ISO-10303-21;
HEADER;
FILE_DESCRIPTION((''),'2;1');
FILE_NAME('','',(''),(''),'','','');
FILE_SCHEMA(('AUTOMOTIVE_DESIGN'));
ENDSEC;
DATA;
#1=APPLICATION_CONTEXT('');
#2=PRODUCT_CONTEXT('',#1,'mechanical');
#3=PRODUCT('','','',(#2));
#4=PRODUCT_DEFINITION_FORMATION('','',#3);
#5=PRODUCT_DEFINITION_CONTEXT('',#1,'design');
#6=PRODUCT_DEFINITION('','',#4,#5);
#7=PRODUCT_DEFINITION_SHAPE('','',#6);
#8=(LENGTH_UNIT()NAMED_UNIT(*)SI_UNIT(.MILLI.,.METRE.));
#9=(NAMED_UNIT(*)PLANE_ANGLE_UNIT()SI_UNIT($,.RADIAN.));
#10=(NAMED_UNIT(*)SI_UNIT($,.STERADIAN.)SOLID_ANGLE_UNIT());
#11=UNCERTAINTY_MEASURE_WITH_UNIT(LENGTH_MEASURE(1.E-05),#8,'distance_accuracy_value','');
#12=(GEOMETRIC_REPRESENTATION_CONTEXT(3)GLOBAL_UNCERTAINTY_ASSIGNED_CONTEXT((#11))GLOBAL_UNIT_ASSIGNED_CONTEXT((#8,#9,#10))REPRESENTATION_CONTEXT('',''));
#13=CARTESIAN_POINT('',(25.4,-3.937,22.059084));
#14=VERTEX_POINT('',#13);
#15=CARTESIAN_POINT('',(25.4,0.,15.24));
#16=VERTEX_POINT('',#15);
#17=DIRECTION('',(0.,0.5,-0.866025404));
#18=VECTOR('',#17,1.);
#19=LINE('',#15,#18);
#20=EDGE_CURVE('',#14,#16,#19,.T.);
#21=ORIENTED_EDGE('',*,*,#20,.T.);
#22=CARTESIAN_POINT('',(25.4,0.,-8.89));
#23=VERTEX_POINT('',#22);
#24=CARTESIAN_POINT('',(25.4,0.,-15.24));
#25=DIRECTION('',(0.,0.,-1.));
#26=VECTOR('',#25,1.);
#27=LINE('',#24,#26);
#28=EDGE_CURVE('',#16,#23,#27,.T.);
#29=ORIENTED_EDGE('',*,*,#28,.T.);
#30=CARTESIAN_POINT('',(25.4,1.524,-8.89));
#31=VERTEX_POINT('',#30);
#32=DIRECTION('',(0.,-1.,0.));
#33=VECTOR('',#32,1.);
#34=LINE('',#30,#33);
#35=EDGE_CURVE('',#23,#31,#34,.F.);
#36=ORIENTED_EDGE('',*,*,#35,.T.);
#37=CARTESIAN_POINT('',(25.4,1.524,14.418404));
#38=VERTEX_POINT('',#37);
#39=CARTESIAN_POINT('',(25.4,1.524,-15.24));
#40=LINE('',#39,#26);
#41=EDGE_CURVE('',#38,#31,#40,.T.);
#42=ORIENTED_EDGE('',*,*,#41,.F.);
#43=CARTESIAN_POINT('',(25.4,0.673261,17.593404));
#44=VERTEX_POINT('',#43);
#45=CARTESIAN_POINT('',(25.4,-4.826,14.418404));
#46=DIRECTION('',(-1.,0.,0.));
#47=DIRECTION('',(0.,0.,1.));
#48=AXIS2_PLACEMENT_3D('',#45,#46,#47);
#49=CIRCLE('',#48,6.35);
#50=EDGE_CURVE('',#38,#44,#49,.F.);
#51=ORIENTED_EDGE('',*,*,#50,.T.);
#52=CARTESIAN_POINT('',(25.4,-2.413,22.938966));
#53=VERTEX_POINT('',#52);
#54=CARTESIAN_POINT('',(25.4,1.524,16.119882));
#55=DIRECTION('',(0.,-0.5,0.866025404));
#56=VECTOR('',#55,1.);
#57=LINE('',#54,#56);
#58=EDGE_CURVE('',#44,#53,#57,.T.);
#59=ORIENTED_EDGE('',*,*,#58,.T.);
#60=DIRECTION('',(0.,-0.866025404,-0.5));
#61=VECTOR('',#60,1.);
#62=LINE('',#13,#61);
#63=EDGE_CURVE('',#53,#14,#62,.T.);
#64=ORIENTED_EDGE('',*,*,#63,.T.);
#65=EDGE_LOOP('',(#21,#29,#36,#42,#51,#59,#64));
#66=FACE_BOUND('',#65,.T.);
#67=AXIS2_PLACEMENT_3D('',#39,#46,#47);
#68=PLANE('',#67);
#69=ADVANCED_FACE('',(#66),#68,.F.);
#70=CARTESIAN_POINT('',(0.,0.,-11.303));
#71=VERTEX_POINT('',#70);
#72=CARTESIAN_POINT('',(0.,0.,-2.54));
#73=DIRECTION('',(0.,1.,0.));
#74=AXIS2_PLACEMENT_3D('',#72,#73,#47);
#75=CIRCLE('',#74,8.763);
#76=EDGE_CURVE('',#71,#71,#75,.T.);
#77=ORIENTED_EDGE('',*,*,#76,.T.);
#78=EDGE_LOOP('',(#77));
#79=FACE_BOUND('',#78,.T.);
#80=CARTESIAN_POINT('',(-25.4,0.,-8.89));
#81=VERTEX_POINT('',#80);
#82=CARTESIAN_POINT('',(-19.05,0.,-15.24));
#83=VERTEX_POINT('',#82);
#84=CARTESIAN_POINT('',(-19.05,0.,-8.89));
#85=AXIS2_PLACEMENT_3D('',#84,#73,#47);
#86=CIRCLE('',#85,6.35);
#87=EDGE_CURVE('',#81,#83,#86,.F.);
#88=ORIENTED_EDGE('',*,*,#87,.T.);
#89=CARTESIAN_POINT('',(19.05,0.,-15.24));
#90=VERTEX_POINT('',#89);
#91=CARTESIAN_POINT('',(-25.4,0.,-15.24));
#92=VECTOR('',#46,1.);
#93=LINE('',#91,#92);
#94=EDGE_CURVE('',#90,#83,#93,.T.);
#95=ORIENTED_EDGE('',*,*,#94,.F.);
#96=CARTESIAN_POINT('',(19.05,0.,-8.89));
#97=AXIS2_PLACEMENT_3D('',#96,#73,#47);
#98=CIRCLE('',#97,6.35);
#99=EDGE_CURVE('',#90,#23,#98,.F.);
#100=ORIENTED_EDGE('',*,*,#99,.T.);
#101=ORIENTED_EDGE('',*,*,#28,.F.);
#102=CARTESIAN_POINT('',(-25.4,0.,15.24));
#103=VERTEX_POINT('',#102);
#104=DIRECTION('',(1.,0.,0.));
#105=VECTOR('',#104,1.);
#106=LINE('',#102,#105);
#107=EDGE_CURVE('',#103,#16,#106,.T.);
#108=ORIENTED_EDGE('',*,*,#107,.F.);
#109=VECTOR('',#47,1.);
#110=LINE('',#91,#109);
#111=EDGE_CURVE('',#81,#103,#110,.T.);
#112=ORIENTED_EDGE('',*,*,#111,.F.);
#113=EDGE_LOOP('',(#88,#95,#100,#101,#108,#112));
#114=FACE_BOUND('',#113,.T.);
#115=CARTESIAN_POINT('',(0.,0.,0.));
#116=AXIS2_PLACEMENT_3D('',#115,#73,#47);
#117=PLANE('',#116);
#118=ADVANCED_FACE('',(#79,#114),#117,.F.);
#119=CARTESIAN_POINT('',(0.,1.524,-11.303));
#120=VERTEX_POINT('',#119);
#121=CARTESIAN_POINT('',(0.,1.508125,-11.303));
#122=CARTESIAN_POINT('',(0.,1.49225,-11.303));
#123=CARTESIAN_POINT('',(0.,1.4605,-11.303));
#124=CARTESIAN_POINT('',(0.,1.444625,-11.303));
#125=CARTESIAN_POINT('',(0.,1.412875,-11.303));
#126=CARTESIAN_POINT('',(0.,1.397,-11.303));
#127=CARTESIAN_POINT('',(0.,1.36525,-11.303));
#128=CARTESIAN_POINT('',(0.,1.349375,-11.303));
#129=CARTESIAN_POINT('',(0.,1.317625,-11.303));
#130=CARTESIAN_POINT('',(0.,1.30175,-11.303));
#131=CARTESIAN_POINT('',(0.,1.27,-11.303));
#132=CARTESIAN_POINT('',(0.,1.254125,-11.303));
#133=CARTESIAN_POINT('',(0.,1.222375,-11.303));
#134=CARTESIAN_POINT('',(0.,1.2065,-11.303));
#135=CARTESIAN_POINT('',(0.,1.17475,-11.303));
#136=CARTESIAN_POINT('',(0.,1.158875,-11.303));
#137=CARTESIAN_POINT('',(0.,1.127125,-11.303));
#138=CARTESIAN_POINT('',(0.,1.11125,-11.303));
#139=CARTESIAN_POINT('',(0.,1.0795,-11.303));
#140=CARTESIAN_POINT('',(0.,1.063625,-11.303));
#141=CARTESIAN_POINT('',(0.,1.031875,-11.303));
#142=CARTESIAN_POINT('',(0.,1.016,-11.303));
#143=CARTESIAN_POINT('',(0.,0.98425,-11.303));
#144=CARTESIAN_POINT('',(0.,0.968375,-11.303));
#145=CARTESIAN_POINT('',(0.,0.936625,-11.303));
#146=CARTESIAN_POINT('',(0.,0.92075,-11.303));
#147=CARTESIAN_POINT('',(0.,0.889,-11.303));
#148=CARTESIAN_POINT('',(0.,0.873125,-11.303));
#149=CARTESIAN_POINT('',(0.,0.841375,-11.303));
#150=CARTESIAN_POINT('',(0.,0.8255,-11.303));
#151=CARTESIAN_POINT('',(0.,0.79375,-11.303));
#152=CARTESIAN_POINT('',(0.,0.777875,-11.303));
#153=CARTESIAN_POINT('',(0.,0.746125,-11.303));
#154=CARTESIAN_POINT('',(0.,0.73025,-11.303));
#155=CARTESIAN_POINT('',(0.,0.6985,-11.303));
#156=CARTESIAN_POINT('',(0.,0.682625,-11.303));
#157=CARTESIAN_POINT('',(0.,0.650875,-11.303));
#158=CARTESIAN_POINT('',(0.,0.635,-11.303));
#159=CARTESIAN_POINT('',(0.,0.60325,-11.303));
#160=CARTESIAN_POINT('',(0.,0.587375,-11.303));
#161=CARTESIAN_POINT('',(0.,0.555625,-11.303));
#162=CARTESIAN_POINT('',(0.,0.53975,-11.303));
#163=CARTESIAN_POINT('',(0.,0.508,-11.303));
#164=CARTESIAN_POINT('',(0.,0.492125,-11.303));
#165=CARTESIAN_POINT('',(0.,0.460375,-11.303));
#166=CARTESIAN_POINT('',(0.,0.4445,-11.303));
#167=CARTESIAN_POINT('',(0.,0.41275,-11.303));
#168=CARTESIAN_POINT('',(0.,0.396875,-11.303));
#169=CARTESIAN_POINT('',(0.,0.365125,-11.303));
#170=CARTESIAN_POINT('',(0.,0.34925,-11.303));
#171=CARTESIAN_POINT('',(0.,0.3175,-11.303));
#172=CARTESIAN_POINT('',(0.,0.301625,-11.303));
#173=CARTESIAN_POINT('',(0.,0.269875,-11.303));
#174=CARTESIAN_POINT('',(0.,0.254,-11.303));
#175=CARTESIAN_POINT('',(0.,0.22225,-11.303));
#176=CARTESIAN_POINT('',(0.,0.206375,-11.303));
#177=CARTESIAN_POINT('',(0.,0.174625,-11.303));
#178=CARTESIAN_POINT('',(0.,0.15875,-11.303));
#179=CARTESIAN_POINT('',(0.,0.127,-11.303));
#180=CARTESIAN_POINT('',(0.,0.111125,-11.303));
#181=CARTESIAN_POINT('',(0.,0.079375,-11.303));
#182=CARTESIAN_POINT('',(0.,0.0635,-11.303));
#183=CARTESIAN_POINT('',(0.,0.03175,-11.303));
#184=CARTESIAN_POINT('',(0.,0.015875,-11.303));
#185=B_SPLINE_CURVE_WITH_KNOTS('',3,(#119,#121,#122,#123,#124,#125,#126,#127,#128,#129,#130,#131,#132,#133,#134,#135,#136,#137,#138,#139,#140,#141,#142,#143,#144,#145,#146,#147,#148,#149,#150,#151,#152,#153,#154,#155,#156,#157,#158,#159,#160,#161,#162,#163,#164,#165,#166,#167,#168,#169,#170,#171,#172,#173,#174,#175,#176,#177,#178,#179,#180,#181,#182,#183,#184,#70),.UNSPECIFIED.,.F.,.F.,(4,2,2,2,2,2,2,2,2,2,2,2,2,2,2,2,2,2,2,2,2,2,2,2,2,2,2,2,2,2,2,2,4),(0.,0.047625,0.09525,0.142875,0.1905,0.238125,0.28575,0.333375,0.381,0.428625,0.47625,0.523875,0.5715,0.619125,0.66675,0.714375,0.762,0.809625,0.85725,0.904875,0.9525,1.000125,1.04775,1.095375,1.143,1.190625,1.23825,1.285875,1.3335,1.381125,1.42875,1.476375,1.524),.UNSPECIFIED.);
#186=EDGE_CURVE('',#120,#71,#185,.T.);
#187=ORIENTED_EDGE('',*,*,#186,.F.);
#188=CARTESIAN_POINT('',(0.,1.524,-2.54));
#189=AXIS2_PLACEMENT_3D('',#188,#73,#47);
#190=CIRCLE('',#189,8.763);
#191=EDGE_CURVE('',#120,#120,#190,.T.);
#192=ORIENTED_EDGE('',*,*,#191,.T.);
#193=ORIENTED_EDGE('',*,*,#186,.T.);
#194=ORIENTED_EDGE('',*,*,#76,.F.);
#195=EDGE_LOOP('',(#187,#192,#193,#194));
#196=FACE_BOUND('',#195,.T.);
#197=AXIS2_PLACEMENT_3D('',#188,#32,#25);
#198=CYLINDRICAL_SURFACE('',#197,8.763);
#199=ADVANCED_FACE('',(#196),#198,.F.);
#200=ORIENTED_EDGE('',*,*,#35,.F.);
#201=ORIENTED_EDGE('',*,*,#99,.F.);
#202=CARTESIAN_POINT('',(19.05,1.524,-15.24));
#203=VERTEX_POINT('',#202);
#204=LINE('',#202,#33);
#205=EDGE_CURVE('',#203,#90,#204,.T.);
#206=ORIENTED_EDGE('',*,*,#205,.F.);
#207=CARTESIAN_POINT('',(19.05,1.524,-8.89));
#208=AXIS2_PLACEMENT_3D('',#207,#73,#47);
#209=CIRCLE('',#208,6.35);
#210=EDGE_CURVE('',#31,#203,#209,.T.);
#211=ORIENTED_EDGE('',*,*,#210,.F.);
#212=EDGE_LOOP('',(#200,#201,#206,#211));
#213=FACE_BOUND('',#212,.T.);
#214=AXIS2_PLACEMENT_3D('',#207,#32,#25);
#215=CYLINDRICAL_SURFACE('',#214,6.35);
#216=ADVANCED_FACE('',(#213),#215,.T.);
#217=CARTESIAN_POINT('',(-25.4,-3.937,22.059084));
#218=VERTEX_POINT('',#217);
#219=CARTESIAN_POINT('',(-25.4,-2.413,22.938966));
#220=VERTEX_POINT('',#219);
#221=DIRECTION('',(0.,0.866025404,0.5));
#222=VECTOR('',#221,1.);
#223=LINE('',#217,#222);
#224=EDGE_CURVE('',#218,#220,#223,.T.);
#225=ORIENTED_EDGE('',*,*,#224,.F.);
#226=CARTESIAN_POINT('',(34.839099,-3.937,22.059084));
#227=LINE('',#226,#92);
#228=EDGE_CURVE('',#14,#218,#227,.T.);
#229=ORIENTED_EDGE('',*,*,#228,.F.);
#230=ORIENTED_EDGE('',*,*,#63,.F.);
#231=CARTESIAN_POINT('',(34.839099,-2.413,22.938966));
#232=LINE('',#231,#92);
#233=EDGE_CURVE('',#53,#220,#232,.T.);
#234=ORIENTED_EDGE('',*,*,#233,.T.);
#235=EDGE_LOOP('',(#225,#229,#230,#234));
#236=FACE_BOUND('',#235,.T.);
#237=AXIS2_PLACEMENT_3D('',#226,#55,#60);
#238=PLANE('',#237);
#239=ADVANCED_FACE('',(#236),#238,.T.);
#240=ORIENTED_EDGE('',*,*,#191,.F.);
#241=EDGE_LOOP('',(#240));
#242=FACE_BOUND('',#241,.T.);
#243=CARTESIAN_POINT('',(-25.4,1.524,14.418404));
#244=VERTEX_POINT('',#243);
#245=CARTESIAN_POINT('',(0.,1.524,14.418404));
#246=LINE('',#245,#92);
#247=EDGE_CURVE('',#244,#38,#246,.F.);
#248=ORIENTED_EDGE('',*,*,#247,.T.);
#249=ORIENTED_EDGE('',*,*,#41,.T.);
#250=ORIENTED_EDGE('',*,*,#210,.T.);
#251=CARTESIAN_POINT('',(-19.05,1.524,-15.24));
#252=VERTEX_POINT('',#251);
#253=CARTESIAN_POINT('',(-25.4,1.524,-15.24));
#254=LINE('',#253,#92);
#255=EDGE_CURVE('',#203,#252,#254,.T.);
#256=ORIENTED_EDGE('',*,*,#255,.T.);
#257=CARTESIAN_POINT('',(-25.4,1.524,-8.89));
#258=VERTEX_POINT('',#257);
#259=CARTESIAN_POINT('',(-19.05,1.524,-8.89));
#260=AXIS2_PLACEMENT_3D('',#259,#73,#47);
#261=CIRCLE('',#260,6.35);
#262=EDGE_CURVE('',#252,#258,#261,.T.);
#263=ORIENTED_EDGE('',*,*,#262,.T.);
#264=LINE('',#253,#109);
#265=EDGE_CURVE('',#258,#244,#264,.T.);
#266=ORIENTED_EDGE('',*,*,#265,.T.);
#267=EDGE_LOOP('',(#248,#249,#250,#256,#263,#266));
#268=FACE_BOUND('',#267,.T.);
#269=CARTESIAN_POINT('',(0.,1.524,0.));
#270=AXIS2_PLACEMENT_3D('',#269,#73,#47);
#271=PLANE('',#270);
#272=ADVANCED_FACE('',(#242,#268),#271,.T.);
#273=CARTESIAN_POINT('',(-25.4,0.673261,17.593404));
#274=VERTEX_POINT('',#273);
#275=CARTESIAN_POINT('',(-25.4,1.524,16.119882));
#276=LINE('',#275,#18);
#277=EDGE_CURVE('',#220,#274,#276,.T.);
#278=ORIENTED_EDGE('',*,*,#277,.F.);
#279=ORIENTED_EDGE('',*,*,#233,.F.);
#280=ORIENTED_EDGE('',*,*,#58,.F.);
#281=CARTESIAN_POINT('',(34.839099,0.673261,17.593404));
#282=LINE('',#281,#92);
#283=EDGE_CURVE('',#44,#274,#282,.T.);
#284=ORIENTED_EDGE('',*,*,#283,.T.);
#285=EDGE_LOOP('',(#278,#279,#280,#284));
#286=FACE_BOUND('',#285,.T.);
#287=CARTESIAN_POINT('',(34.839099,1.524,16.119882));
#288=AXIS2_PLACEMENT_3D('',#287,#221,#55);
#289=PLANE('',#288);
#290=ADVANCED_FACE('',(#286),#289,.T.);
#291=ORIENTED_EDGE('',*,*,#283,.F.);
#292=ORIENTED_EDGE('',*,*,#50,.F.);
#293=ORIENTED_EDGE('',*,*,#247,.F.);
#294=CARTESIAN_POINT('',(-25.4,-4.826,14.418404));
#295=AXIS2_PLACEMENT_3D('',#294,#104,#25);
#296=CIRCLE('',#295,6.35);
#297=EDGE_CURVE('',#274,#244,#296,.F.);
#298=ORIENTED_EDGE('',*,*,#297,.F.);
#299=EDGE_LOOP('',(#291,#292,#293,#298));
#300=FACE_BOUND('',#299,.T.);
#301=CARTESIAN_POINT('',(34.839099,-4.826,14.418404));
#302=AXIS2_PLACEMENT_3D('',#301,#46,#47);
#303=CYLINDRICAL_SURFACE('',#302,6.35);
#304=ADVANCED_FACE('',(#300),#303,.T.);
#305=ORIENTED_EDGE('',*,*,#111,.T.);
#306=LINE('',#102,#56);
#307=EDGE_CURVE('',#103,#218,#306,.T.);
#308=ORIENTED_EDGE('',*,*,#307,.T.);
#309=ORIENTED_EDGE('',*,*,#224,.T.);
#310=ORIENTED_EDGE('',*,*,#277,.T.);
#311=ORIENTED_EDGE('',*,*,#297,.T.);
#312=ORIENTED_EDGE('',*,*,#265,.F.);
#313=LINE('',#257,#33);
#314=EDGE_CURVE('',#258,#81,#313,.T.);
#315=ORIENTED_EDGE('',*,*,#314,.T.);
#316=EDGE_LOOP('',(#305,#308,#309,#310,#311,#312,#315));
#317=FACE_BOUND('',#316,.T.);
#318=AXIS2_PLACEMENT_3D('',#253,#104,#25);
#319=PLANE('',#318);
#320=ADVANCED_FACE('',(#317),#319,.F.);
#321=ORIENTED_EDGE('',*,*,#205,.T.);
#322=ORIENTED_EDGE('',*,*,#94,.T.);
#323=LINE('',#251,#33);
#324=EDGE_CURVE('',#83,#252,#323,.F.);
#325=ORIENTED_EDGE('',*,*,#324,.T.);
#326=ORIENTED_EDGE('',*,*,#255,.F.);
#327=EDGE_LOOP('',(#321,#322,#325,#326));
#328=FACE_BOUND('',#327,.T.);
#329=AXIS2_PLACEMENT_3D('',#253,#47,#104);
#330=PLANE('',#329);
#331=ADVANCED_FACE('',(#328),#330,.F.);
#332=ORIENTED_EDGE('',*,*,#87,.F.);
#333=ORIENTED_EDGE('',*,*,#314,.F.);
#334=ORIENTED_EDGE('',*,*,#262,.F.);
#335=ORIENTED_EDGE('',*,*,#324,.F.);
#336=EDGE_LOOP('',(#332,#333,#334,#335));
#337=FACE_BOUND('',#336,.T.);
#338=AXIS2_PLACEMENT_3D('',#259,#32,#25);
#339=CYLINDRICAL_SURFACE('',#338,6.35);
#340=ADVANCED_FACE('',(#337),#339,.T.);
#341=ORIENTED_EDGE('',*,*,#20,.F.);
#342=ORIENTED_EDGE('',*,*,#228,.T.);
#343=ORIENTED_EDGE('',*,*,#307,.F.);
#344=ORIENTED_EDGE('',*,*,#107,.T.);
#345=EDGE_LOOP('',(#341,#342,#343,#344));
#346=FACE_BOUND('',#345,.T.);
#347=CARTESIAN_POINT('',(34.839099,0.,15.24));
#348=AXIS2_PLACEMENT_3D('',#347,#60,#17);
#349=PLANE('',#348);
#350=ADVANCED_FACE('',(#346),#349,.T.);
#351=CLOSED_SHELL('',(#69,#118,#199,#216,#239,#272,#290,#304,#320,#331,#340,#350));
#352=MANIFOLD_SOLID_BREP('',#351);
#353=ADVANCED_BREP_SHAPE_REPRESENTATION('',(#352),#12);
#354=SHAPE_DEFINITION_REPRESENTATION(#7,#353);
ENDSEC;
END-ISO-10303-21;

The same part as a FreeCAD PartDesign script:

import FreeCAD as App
import Part
import Sketcher
Q = App.Units.Quantity


def edges_at(feature, points):
    """Names of the edges that pass closest to the given points."""
    edges = feature.Shape.Edges
    near = lambda p: min(range(len(edges)), key=lambda i: edges[i].distToShape(Part.Vertex(*p))[0])
    return sorted({f"Edge{near(p) + 1}" for p in points})


def add_polygon(sketch, points):
    """Adds a closed chain of lines whose ends are joined by coincident constraints."""
    first, n = sketch.GeometryCount, len(points)
    for a, b in zip(points, points[1:] + points[:1]):
        sketch.addGeometry(Part.LineSegment(App.Vector(*a, 0), App.Vector(*b, 0)), False)
    for i in range(n):
        sketch.addConstraint(Sketcher.Constraint("Coincident", first + i, 2, first + (i + 1) % n, 1))

doc = App.newDocument("Part")
body = doc.addObject("PartDesign::Body", "Body")

sketch1 = body.newObject("Sketcher::SketchObject", "Sketch")
sketch1.AttachmentSupport = (doc.getObject("XZ_Plane"), [""])
sketch1.MapMode = "FlatFace"
add_polygon(sketch1, [(-25, -15), (-25, 15), (25, 15), (25, -15)])
sketch1.addGeometry(Part.Circle(App.Vector(0, -3, 0), App.Vector(0, 0, 1), 9), False)
sketch1.addConstraint([
    Sketcher.Constraint("Vertical", 0),
    Sketcher.Constraint("Horizontal", 1),
    Sketcher.Constraint("Vertical", 2),
    Sketcher.Constraint("Horizontal", 3),
    Sketcher.Constraint("Symmetric", 0, 2, 2, 2, -1, 1),
    Sketcher.Constraint("PointOnObject", 4, 3, -2),
    Sketcher.Constraint("Diameter", 4, Q("0.69 in")),
    Sketcher.Constraint("DistanceX", 1, 1, 1, 2, Q("2 in")),
    Sketcher.Constraint("DistanceY", 0, 1, 0, 2, Q("1.2 in")),
    Sketcher.Constraint("DistanceY", 4, 3, -1, 1, Q("0.1 in")),
])
pad1 = body.newObject("PartDesign::Pad", "Pad")
pad1.Profile = sketch1
pad1.Length = Q("0.06 in")
pad1.Reversed = True

sketch2 = body.newObject("Sketcher::SketchObject", "Sketch001")
sketch2.AttachmentSupport = (doc.getObject("YZ_Plane"), [""])
sketch2.MapMode = "FlatFace"
sketch2.AttachmentOffset = App.Placement(App.Vector(0, 0, -1 * 25.4), App.Rotation())
add_polygon(sketch2, [(0, 15.2), (-3.9, 22.1), (-2.4, 22.9), (1.5, 16.1), (1.5, 15.2)])
sketch2.addConstraint([
    Sketcher.Constraint("Vertical", 3),
    Sketcher.Constraint("Horizontal", 4),
    Sketcher.Constraint("PointOnObject", 4, 2, -2),
    Sketcher.Constraint("Perpendicular", 0, 1),
    Sketcher.Constraint("Perpendicular", 1, 2),
    Sketcher.Constraint("Equal", 0, 2),
    Sketcher.Constraint("Angle", 0, Q("120 deg")),
    Sketcher.Constraint("DistanceX", 4, 2, 4, 1, Q("0.06 in")),
    Sketcher.Constraint("DistanceY", -1, 1, 3, 2, Q("0.6 in")),
    Sketcher.Constraint("Distance", 0, Q("0.31 in")),
])
pad2 = body.newObject("PartDesign::Pad", "Pad001")
pad2.Profile = sketch2
pad2.Length = Q("2 in")
doc.recompute()

fillet = body.newObject("PartDesign::Fillet", "Fillet")
fillet.Base = (pad2, edges_at(pad2, [(0, 1.524, 16.12), (-25.4, 0.762, -15.24), (25.4, 0.762, -15.24)]))
fillet.Radius = Q("0.25 in")

doc.recompute()
